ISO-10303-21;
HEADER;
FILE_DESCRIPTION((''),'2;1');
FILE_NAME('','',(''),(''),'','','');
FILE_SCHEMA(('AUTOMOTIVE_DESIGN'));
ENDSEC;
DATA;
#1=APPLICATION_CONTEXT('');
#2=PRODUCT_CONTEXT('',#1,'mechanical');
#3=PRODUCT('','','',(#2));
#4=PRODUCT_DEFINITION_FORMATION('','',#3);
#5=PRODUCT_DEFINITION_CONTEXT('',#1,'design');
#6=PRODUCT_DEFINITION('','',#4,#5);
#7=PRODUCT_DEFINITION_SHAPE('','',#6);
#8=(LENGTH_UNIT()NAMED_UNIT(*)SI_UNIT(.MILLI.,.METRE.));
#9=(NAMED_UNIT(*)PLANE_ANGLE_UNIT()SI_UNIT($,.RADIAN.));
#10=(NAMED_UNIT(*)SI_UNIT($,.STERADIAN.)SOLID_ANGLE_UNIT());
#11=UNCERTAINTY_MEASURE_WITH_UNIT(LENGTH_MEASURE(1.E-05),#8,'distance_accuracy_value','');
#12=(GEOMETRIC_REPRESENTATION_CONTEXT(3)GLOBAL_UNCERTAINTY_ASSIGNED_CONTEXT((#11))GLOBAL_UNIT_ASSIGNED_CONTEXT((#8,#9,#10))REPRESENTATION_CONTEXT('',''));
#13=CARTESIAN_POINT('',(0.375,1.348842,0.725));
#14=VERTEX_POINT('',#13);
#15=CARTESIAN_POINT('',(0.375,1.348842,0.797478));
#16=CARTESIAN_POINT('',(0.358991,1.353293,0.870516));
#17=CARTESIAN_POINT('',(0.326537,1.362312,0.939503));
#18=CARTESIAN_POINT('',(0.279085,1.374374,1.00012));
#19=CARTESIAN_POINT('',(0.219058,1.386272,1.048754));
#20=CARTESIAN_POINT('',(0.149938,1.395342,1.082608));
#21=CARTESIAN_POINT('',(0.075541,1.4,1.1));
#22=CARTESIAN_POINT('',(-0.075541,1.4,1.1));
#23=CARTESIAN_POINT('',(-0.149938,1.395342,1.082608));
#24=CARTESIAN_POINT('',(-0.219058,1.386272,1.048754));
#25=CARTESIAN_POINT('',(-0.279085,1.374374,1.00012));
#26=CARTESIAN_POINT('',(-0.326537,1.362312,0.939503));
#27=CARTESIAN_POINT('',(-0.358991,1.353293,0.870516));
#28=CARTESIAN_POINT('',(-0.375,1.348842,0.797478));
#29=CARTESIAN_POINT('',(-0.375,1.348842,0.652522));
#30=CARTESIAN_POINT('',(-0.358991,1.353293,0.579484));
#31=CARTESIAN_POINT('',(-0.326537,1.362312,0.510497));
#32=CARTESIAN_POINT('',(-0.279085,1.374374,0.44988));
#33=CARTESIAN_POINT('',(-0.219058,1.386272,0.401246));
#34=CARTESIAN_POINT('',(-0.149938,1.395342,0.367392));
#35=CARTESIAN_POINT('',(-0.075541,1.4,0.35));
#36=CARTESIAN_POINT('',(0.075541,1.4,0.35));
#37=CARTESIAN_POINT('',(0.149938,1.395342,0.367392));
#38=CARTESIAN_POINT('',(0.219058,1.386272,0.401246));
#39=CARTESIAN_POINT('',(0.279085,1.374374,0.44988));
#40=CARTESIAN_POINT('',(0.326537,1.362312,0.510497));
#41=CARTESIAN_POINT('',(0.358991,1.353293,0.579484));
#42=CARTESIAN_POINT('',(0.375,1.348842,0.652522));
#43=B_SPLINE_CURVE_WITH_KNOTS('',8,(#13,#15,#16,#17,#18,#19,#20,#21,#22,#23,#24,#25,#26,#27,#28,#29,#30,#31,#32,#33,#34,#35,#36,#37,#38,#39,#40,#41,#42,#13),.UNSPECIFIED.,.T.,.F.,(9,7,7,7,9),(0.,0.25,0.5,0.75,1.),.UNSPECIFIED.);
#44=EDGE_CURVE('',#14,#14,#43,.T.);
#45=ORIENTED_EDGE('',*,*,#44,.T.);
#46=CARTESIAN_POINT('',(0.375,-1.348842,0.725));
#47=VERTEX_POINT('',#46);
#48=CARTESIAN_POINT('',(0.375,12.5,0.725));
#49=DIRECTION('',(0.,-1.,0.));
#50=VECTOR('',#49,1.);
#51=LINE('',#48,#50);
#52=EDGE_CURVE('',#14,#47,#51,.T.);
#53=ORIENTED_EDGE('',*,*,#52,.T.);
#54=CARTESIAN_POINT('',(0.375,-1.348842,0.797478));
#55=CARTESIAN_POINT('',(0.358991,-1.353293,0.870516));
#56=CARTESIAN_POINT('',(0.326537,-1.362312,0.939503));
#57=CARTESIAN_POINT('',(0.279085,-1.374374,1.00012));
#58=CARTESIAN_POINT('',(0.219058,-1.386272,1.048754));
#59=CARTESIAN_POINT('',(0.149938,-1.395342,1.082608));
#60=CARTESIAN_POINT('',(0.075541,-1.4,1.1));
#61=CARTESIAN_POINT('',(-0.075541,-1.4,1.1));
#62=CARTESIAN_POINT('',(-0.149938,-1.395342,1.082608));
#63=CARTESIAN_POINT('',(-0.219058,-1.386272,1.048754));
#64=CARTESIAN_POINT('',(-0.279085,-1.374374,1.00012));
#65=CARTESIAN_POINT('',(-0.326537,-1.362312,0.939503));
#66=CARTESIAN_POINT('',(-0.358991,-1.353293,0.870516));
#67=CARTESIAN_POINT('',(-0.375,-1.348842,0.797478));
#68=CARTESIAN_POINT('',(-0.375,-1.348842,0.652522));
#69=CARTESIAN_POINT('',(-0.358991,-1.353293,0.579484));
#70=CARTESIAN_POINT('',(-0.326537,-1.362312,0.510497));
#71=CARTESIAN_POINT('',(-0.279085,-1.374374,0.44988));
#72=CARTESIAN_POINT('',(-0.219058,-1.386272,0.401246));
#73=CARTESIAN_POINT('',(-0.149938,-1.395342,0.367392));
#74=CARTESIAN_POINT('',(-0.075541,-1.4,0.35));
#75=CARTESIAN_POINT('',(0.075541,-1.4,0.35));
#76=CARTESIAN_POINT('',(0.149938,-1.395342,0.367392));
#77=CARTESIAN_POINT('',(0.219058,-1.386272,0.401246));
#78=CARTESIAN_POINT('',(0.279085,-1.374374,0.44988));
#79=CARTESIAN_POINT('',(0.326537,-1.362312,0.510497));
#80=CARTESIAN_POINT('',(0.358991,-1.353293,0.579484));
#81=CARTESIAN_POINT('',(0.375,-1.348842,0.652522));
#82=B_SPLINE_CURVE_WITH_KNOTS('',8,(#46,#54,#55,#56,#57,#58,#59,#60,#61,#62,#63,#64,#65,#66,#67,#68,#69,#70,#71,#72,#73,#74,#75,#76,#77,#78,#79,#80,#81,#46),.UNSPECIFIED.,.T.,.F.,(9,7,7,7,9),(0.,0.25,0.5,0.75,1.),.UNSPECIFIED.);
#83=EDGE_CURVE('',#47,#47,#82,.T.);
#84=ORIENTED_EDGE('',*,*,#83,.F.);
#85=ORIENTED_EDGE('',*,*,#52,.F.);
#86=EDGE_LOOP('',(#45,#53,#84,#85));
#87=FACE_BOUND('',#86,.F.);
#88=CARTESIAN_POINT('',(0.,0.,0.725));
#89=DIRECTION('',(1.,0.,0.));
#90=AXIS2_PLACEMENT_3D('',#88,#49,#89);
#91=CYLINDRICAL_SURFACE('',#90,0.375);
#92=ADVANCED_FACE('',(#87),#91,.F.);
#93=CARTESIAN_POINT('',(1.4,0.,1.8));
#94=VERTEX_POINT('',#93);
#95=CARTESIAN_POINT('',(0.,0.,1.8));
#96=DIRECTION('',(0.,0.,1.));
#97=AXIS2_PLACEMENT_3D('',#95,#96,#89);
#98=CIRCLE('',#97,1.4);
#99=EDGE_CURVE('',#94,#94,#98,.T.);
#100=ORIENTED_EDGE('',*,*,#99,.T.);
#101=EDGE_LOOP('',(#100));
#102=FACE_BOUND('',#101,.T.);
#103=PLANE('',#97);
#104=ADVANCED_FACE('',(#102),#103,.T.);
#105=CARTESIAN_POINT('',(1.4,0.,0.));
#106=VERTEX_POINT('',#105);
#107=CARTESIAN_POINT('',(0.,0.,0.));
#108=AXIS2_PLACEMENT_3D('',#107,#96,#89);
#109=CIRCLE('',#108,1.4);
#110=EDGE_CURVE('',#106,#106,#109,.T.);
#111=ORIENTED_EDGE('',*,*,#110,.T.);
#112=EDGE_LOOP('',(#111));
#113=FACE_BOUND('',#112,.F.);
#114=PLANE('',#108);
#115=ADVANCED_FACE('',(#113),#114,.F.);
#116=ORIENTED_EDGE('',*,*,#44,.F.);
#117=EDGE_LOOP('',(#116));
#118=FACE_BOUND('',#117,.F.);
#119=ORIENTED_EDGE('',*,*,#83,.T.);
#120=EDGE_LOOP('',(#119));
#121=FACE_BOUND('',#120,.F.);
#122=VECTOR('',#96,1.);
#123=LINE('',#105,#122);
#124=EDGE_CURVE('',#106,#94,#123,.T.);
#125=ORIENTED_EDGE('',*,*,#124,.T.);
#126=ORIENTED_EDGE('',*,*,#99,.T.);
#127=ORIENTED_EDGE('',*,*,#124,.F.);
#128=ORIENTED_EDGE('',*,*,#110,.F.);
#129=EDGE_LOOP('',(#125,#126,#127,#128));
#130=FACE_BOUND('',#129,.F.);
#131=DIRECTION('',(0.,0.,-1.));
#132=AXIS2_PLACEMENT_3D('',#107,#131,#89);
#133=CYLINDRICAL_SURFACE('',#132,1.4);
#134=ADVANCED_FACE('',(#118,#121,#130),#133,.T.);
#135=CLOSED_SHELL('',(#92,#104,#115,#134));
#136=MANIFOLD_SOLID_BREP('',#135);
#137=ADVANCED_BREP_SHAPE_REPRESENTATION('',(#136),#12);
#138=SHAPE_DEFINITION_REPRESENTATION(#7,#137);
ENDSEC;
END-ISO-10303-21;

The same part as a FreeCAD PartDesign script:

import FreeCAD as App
import Part
import Sketcher
Q = App.Units.Quantity

doc = App.newDocument("Part")
params = doc.addObject("Spreadsheet::Sheet", "Params")
for row, (alias, value) in enumerate([
    ("sketch1_diameter", "2.8 mm"),
    ("pad1_length", "1.8 mm"),
    ("sketch2_diameter", "0.75 mm"),
    ("pocket1_length", "25 mm"),
], start=1):
    params.set(f"A{row}", alias)
    params.set(f"B{row}", "=" + value)
    params.setAlias(f"B{row}", alias)

body = doc.addObject("PartDesign::Body", "Body")

sketch1 = doc.addObject("Sketcher::SketchObject", "Sketch")
body.addObject(sketch1)
sketch1.AttachmentSupport = (doc.XY_Plane, [""])
sketch1.MapMode = "FlatFace"
sketch1.addGeometry(Part.Circle(App.Vector(0, 0, 0), App.Vector(0, 0, 1), 1.4), False)
sketch1.addConstraint([
    Sketcher.Constraint("Coincident", 0, 3, -1, 1),
    Sketcher.Constraint("Diameter", 0, Q("2.8 mm")),
])
sketch1.setExpression("Constraints[1]", "Params.sketch1_diameter")
pad1 = doc.addObject("PartDesign::Pad", "Pad")
body.addObject(pad1)
pad1.Profile = sketch1
pad1.setExpression("Length", "Params.pad1_length")

sketch2 = doc.addObject("Sketcher::SketchObject", "Sketch001")
body.addObject(sketch2)
sketch2.AttachmentSupport = (doc.XZ_Plane, [""])
sketch2.MapMode = "FlatFace"
sketch2.addGeometry(Part.Circle(App.Vector(0, 0.72, 0), App.Vector(0, 0, 1), 0.38), False)
sketch2.addConstraint([
    Sketcher.Constraint("PointOnObject", 0, 3, -2),
    Sketcher.Constraint("Diameter", 0, Q("0.75 mm")),
    Sketcher.Constraint("DistanceY", -1, 1, 0, 3, Q("0.725 mm")),
])
sketch2.setExpression("Constraints[1]", "Params.sketch2_diameter")
pocket1 = doc.addObject("PartDesign::Pocket", "Pocket")
body.addObject(pocket1)
pocket1.Profile = sketch2
pocket1.setExpression("Length", "Params.pocket1_length")
pocket1.Midplane = True

doc.recompute()
